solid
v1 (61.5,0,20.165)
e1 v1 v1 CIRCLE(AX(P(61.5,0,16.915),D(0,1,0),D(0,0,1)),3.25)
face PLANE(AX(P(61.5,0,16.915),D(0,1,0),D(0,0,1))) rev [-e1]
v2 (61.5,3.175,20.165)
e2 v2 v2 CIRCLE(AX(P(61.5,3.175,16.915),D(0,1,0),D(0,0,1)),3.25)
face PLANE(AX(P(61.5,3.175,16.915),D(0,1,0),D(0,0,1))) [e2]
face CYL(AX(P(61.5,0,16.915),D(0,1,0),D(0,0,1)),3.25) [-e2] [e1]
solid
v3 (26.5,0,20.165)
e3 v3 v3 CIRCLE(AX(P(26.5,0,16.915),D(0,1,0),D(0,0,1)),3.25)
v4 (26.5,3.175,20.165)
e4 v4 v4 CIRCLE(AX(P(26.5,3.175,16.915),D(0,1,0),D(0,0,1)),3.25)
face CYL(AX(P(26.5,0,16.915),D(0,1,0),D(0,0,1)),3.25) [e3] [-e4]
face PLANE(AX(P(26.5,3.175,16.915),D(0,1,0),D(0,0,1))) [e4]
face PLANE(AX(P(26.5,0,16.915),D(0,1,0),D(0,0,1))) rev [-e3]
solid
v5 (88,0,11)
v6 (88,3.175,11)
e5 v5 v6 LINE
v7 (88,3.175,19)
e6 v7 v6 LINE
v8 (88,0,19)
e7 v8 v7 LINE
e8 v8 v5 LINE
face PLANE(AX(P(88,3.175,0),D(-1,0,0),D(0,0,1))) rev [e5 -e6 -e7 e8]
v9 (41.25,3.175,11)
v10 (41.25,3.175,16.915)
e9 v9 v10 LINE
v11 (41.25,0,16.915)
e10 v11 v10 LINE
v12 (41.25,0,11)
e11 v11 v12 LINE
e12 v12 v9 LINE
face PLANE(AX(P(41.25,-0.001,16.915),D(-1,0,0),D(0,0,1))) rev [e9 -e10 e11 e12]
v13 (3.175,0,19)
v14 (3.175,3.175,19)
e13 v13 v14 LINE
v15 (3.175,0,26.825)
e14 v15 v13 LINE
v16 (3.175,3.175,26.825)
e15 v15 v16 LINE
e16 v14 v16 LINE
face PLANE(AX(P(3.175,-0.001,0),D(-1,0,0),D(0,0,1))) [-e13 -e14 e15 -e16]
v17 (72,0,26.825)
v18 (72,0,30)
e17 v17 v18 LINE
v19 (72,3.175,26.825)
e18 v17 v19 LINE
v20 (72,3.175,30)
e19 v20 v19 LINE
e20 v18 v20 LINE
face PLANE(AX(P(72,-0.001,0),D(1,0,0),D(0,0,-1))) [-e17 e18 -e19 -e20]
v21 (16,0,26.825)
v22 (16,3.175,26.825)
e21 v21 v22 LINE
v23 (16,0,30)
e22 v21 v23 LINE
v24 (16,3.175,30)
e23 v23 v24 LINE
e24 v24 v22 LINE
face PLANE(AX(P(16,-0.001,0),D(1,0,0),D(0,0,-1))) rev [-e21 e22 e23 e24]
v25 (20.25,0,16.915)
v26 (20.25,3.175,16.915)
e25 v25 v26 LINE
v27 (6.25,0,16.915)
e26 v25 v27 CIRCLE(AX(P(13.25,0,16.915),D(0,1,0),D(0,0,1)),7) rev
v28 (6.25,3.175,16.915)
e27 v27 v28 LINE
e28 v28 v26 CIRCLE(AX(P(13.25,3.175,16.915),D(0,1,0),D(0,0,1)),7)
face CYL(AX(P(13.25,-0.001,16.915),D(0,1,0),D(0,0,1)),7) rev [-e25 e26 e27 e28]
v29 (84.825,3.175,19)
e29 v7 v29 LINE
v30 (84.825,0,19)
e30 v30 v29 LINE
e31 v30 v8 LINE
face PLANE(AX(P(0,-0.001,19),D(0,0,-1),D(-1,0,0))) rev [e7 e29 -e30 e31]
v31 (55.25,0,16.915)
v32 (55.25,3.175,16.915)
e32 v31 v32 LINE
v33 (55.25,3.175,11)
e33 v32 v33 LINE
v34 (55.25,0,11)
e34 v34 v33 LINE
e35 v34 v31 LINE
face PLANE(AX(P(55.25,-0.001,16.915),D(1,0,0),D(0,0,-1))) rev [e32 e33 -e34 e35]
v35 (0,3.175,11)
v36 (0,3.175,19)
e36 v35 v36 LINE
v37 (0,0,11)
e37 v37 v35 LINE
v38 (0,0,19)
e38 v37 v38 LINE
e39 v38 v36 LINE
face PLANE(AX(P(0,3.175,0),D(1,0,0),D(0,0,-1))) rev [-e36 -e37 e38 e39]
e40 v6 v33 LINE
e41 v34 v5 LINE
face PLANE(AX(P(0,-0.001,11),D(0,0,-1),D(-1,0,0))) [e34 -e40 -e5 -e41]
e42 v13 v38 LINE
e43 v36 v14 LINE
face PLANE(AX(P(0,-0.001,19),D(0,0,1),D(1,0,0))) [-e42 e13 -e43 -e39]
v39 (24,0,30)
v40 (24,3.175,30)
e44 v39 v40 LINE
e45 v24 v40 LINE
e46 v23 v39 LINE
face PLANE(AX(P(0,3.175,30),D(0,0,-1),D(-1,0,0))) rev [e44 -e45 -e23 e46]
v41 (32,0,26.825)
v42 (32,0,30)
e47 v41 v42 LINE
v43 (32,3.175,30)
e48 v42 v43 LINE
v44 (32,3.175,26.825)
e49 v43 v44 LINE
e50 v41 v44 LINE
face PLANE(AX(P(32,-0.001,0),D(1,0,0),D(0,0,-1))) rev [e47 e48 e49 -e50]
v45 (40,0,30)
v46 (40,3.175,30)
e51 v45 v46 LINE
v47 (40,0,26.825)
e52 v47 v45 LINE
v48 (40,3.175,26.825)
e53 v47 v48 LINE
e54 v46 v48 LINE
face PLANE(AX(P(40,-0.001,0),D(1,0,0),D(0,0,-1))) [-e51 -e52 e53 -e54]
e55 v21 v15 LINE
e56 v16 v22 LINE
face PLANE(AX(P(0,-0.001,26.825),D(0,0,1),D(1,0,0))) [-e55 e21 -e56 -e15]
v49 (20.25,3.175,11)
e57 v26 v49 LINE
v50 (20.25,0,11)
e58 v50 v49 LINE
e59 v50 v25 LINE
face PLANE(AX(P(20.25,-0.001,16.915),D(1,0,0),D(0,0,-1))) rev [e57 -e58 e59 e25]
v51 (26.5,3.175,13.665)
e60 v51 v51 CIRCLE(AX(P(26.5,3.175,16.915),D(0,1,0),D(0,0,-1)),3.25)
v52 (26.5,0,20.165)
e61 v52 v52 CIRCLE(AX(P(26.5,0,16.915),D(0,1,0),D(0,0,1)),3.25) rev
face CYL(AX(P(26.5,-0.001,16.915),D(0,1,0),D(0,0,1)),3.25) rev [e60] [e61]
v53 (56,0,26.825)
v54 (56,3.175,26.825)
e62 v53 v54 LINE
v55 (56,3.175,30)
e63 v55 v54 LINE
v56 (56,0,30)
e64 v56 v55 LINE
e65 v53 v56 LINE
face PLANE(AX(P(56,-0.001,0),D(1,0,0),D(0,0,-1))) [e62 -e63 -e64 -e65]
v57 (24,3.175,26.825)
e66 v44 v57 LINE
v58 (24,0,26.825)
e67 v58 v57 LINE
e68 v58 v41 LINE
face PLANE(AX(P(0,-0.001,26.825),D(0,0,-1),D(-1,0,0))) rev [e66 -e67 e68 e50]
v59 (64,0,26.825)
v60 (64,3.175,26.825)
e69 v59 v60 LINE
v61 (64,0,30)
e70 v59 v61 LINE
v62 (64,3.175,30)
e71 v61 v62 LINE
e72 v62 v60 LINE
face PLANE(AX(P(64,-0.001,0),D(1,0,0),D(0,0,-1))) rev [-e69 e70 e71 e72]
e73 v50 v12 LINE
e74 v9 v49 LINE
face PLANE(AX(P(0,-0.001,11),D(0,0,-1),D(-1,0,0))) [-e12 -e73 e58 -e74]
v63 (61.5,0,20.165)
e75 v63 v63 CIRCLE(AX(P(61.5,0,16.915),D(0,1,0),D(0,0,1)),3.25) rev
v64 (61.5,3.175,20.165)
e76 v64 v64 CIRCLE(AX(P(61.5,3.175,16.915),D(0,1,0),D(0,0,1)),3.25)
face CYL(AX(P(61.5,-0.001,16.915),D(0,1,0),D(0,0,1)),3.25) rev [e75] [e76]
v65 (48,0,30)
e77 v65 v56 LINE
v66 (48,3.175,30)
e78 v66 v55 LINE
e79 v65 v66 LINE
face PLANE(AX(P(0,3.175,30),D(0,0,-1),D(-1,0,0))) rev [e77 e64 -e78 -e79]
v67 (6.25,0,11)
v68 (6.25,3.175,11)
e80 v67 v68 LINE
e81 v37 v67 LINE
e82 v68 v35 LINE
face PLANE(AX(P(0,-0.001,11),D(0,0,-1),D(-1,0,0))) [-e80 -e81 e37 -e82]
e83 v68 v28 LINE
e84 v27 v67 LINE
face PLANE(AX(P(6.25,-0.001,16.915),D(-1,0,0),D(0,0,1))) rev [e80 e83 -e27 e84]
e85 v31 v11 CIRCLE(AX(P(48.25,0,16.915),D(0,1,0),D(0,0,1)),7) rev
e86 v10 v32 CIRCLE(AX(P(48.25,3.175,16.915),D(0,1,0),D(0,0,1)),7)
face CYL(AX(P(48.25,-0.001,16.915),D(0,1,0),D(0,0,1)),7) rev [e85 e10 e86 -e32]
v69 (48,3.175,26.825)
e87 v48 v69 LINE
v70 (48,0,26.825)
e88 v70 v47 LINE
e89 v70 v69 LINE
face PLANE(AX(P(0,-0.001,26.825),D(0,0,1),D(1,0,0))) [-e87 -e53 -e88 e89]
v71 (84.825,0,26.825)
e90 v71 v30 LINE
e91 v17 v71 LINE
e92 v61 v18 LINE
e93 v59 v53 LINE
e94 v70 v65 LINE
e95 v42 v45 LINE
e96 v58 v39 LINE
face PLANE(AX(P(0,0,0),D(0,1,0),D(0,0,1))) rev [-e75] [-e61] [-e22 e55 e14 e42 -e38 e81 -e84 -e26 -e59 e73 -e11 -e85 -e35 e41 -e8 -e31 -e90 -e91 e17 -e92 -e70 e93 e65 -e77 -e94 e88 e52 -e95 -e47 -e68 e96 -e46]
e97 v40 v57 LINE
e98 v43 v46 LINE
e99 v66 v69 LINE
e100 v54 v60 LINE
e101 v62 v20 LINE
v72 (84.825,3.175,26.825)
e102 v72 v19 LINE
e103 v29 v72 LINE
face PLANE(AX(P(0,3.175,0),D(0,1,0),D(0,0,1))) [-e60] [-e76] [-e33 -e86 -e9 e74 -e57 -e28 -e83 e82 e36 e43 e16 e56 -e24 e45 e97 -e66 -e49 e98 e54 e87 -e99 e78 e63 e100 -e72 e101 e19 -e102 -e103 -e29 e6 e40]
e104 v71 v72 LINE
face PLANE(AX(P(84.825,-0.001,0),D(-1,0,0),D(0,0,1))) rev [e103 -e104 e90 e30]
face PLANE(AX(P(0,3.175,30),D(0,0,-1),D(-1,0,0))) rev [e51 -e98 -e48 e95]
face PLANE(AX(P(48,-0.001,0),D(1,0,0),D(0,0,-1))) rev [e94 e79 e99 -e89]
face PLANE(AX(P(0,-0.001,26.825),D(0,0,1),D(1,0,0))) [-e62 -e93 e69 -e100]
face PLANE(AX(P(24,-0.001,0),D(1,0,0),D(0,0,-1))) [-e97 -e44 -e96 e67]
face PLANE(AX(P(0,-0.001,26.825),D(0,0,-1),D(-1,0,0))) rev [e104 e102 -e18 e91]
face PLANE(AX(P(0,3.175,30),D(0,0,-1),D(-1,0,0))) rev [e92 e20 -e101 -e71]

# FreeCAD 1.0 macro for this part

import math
import FreeCAD as App
import Part
import Sketcher
from FreeCAD import Vector

doc = App.newDocument("Part")
params = doc.addObject("Spreadsheet::Sheet", "Params")
for row, (alias, value) in enumerate([
    ("sketch1_width", "88 mm"),
    ("sketch1_height", "30 mm"),
    ("pad1_length", "3.175 mm"),
    ("sketch3_width", "16 mm"),
    ("sketch4_width", "8 mm"),
    ("sketch5_width", "8 mm"),
    ("sketch6_width", "8 mm"),
    ("sketch8_height", "11 mm"),
    ("sketch9_width", "16 mm"),
    ("sketch10_height", "11 mm"),
    ("sketch11_diameter", "6.5 mm"),
    ("sketch12_diameter", "6.5 mm"),
    ("sketch13_height", "11 mm"),
    ("sketch13_width", "81.65 mm"),
    ("sketch14_radius", "7 mm"),
    ("sketch15_radius", "7 mm"),
    ("sketch16_diameter", "6.5 mm"),
    ("pad2_length", "3.175 mm"),
    ("sketch17_diameter", "6.5 mm"),
    ("pad3_length", "3.175 mm"),
], start=1):
    params.set(f"A{row}", alias)
    params.set(f"B{row}", "=" + value)
    params.setAlias(f"B{row}", alias)

body = doc.addObject("PartDesign::Body", "Body")

# Sketch on XZ plane
sketch1 = body.newObject("Sketcher::SketchObject", "Sketch")
sketch1.AttachmentSupport = (doc.getObject("XZ_Plane"), [""])
sketch1.MapMode = "FlatFace"
sketch1.addGeometry([
    Part.LineSegment(Vector(0, 0, 0), Vector(0, 30, 0)),
    Part.LineSegment(Vector(0, 30, 0), Vector(88, 30, 0)),
    Part.LineSegment(Vector(88, 30, 0), Vector(88, 0, 0)),
    Part.LineSegment(Vector(88, 0, 0), Vector(0, 0, 0)),
], False)
sketch1.addConstraint([
    Sketcher.Constraint("Coincident", 0, 2, 1, 1),
    Sketcher.Constraint("Coincident", 1, 2, 2, 1),
    Sketcher.Constraint("Coincident", 2, 2, 3, 1),
    Sketcher.Constraint("Coincident", 3, 2, 0, 1),
    Sketcher.Constraint("Vertical", 0),
    Sketcher.Constraint("Horizontal", 1),
    Sketcher.Constraint("Vertical", 2),
    Sketcher.Constraint("Horizontal", 3),
    Sketcher.Constraint("Coincident", 3, 2, -1, 1),
    Sketcher.Constraint("DistanceX", 1, 1, 1, 2, 88.0),
    Sketcher.Constraint("DistanceY", 0, 1, 0, 2, 30.0),
])
sketch1.setExpression("Constraints[9]", "Params.sketch1_width")
sketch1.setExpression("Constraints[10]", "Params.sketch1_height")
pad1 = body.newObject("PartDesign::Pad", "Pad")
pad1.Profile = sketch1
pad1.setExpression("Length", "Params.pad1_length")
pad1.Reversed = True

# Sketch on XZ plane
sketch2 = body.newObject("Sketcher::SketchObject", "Sketch001")
sketch2.AttachmentSupport = (doc.getObject("XZ_Plane"), [""])
sketch2.MapMode = "FlatFace"
sketch2.AttachmentOffset = App.Placement(Vector(0, 0, -3.175), App.Rotation())
sketch2.addGeometry([
    Part.LineSegment(Vector(0, 19, 0), Vector(0, 26.8, 0)),
    Part.LineSegment(Vector(0, 26.8, 0), Vector(3.2, 26.8, 0)),
    Part.LineSegment(Vector(3.2, 26.8, 0), Vector(3.2, 19, 0)),
    Part.LineSegment(Vector(3.2, 19, 0), Vector(0, 19, 0)),
], False)
sketch2.addConstraint([
    Sketcher.Constraint("Coincident", 0, 2, 1, 1),
    Sketcher.Constraint("Coincident", 1, 2, 2, 1),
    Sketcher.Constraint("Coincident", 2, 2, 3, 1),
    Sketcher.Constraint("Coincident", 3, 2, 0, 1),
    Sketcher.Constraint("Vertical", 0),
    Sketcher.Constraint("Horizontal", 1),
    Sketcher.Constraint("Vertical", 2),
    Sketcher.Constraint("Horizontal", 3),
    Sketcher.Constraint("PointOnObject", 0, 2, -2),
    Sketcher.Constraint("DistanceY", -1, 1, 2, 2, 19.0),
    Sketcher.Constraint("DistanceX", 1, 1, 1, 2, 3.175),
    Sketcher.Constraint("DistanceY", 0, 1, 0, 2, 7.825),
])
pocket1 = body.newObject("PartDesign::Pocket", "Pocket")
pocket1.Profile = sketch2
pocket1.Type = "UpToFirst"
pocket1.Reversed = True

# Sketch on XZ plane
sketch3 = body.newObject("Sketcher::SketchObject", "Sketch002")
sketch3.AttachmentSupport = (doc.getObject("XZ_Plane"), [""])
sketch3.MapMode = "FlatFace"
sketch3.AttachmentOffset = App.Placement(Vector(0, 0, -3.175), App.Rotation())
sketch3.addGeometry([
    Part.LineSegment(Vector(0, 30, 0), Vector(16, 30, 0)),
    Part.LineSegment(Vector(16, 30, 0), Vector(16, 26.8, 0)),
    Part.LineSegment(Vector(16, 26.8, 0), Vector(0, 26.8, 0)),
    Part.LineSegment(Vector(0, 26.8, 0), Vector(0, 30, 0)),
], False)
sketch3.addConstraint([
    Sketcher.Constraint("Coincident", 0, 2, 1, 1),
    Sketcher.Constraint("Coincident", 1, 2, 2, 1),
    Sketcher.Constraint("Coincident", 2, 2, 3, 1),
    Sketcher.Constraint("Coincident", 3, 2, 0, 1),
    Sketcher.Constraint("Horizontal", 0),
    Sketcher.Constraint("Vertical", 1),
    Sketcher.Constraint("Horizontal", 2),
    Sketcher.Constraint("Vertical", 3),
    Sketcher.Constraint("PointOnObject", 2, 2, -2),
    Sketcher.Constraint("DistanceX", 0, 1, 0, 2, 16.0),
    Sketcher.Constraint("DistanceY", -1, 1, 0, 2, 30.0),
    Sketcher.Constraint("DistanceY", 1, 2, 1, 1, 3.175),
])
sketch3.setExpression("Constraints[9]", "Params.sketch3_width")
pocket2 = body.newObject("PartDesign::Pocket", "Pocket001")
pocket2.Profile = sketch3
pocket2.Type = "UpToFirst"
pocket2.Reversed = True

# Sketch on XZ plane
sketch4 = body.newObject("Sketcher::SketchObject", "Sketch003")
sketch4.AttachmentSupport = (doc.getObject("XZ_Plane"), [""])
sketch4.MapMode = "FlatFace"
sketch4.AttachmentOffset = App.Placement(Vector(0, 0, -3.175), App.Rotation())
sketch4.addGeometry([
    Part.LineSegment(Vector(24, 26.8, 0), Vector(24, 30, 0)),
    Part.LineSegment(Vector(24, 30, 0), Vector(32, 30, 0)),
    Part.LineSegment(Vector(32, 30, 0), Vector(32, 26.8, 0)),
    Part.LineSegment(Vector(32, 26.8, 0), Vector(24, 26.8, 0)),
], False)
sketch4.addConstraint([
    Sketcher.Constraint("Coincident", 0, 2, 1, 1),
    Sketcher.Constraint("Coincident", 1, 2, 2, 1),
    Sketcher.Constraint("Coincident", 2, 2, 3, 1),
    Sketcher.Constraint("Coincident", 3, 2, 0, 1),
    Sketcher.Constraint("Vertical", 0),
    Sketcher.Constraint("Horizontal", 1),
    Sketcher.Constraint("Vertical", 2),
    Sketcher.Constraint("Horizontal", 3),
    Sketcher.Constraint("DistanceX", 1, 1, 1, 2, 8.0),
    Sketcher.Constraint("DistanceX", -1, 1, 0, 2, 24.0),
    Sketcher.Constraint("DistanceY", -1, 1, 0, 2, 30.0),
    Sketcher.Constraint("DistanceY", 0, 1, 0, 2, 3.175),
])
sketch4.setExpression("Constraints[8]", "Params.sketch4_width")
pocket3 = body.newObject("PartDesign::Pocket", "Pocket002")
pocket3.Profile = sketch4
pocket3.Type = "UpToFirst"
pocket3.Reversed = True

# Sketch on XZ plane
sketch5 = body.newObject("Sketcher::SketchObject", "Sketch004")
sketch5.AttachmentSupport = (doc.getObject("XZ_Plane"), [""])
sketch5.MapMode = "FlatFace"
sketch5.AttachmentOffset = App.Placement(Vector(0, 0, -3.175), App.Rotation())
sketch5.addGeometry([
    Part.LineSegment(Vector(40, 26.8, 0), Vector(40, 30, 0)),
    Part.LineSegment(Vector(40, 30, 0), Vector(48, 30, 0)),
    Part.LineSegment(Vector(48, 30, 0), Vector(48, 26.8, 0)),
    Part.LineSegment(Vector(48, 26.8, 0), Vector(40, 26.8, 0)),
], False)
sketch5.addConstraint([
    Sketcher.Constraint("Coincident", 0, 2, 1, 1),
    Sketcher.Constraint("Coincident", 1, 2, 2, 1),
    Sketcher.Constraint("Coincident", 2, 2, 3, 1),
    Sketcher.Constraint("Coincident", 3, 2, 0, 1),
    Sketcher.Constraint("Vertical", 0),
    Sketcher.Constraint("Horizontal", 1),
    Sketcher.Constraint("Vertical", 2),
    Sketcher.Constraint("Horizontal", 3),
    Sketcher.Constraint("DistanceX", 1, 1, 1, 2, 8.0),
    Sketcher.Constraint("DistanceX", -1, 1, 0, 2, 40.0),
    Sketcher.Constraint("DistanceY", -1, 1, 0, 2, 30.0),
    Sketcher.Constraint("DistanceY", 0, 1, 0, 2, 3.175),
])
sketch5.setExpression("Constraints[8]", "Params.sketch5_width")
pocket4 = body.newObject("PartDesign::Pocket", "Pocket003")
pocket4.Profile = sketch5
pocket4.Type = "UpToFirst"
pocket4.Reversed = True

# Sketch on XZ plane
sketch6 = body.newObject("Sketcher::SketchObject", "Sketch005")
sketch6.AttachmentSupport = (doc.getObject("XZ_Plane"), [""])
sketch6.MapMode = "FlatFace"
sketch6.AttachmentOffset = App.Placement(Vector(0, 0, -3.175), App.Rotation())
sketch6.addGeometry([
    Part.LineSegment(Vector(56, 26.8, 0), Vector(56, 30, 0)),
    Part.LineSegment(Vector(56, 30, 0), Vector(64, 30, 0)),
    Part.LineSegment(Vector(64, 30, 0), Vector(64, 26.8, 0)),
    Part.LineSegment(Vector(64, 26.8, 0), Vector(56, 26.8, 0)),
], False)
sketch6.addConstraint([
    Sketcher.Constraint("Coincident", 0, 2, 1, 1),
    Sketcher.Constraint("Coincident", 1, 2, 2, 1),
    Sketcher.Constraint("Coincident", 2, 2, 3, 1),
    Sketcher.Constraint("Coincident", 3, 2, 0, 1),
    Sketcher.Constraint("Vertical", 0),
    Sketcher.Constraint("Horizontal", 1),
    Sketcher.Constraint("Vertical", 2),
    Sketcher.Constraint("Horizontal", 3),
    Sketcher.Constraint("DistanceX", 1, 1, 1, 2, 8.0),
    Sketcher.Constraint("DistanceX", -1, 1, 0, 2, 56.0),
    Sketcher.Constraint("DistanceY", -1, 1, 0, 2, 30.0),
    Sketcher.Constraint("DistanceY", 0, 1, 0, 2, 3.175),
])
sketch6.setExpression("Constraints[8]", "Params.sketch6_width")
pocket5 = body.newObject("PartDesign::Pocket", "Pocket004")
pocket5.Profile = sketch6
pocket5.Type = "UpToFirst"
pocket5.Reversed = True

# Sketch on XZ plane
sketch7 = body.newObject("Sketcher::SketchObject", "Sketch006")
sketch7.AttachmentSupport = (doc.getObject("XZ_Plane"), [""])
sketch7.MapMode = "FlatFace"
sketch7.AttachmentOffset = App.Placement(Vector(0, 0, -3.175), App.Rotation())
sketch7.addGeometry([
    Part.LineSegment(Vector(84.8, 19, 0), Vector(84.8, 26.8, 0)),
    Part.LineSegment(Vector(84.8, 26.8, 0), Vector(88, 26.8, 0)),
    Part.LineSegment(Vector(88, 26.8, 0), Vector(88, 19, 0)),
    Part.LineSegment(Vector(88, 19, 0), Vector(84.8, 19, 0)),
], False)
sketch7.addConstraint([
    Sketcher.Constraint("Coincident", 0, 2, 1, 1),
    Sketcher.Constraint("Coincident", 1, 2, 2, 1),
    Sketcher.Constraint("Coincident", 2, 2, 3, 1),
    Sketcher.Constraint("Coincident", 3, 2, 0, 1),
    Sketcher.Constraint("Vertical", 0),
    Sketcher.Constraint("Horizontal", 1),
    Sketcher.Constraint("Vertical", 2),
    Sketcher.Constraint("Horizontal", 3),
    Sketcher.Constraint("DistanceX", -1, 1, 1, 2, 88.0),
    Sketcher.Constraint("DistanceY", -1, 1, 2, 2, 19.0),
    Sketcher.Constraint("DistanceX", 1, 1, 1, 2, 3.175),
    Sketcher.Constraint("DistanceY", 0, 1, 0, 2, 7.825),
])
pocket6 = body.newObject("PartDesign::Pocket", "Pocket005")
pocket6.Profile = sketch7
pocket6.Type = "UpToFirst"
pocket6.Reversed = True

# Sketch on XZ plane
sketch8 = body.newObject("Sketcher::SketchObject", "Sketch007")
sketch8.AttachmentSupport = (doc.getObject("XZ_Plane"), [""])
sketch8.MapMode = "FlatFace"
sketch8.AttachmentOffset = App.Placement(Vector(0, 0, -3.175), App.Rotation())
sketch8.addGeometry([
    Part.LineSegment(Vector(84.8, 0, 0), Vector(84.8, 11, 0)),
    Part.LineSegment(Vector(84.8, 11, 0), Vector(88, 11, 0)),
    Part.LineSegment(Vector(88, 11, 0), Vector(88, 0, 0)),
    Part.LineSegment(Vector(88, 0, 0), Vector(84.8, 0, 0)),
], False)
sketch8.addConstraint([
    Sketcher.Constraint("Coincident", 0, 2, 1, 1),
    Sketcher.Constraint("Coincident", 1, 2, 2, 1),
    Sketcher.Constraint("Coincident", 2, 2, 3, 1),
    Sketcher.Constraint("Coincident", 3, 2, 0, 1),
    Sketcher.Constraint("Vertical", 0),
    Sketcher.Constraint("Horizontal", 1),
    Sketcher.Constraint("Vertical", 2),
    Sketcher.Constraint("Horizontal", 3),
    Sketcher.Constraint("PointOnObject", 2, 2, -1),
    Sketcher.Constraint("DistanceY", 0, 1, 0, 2, 11.0),
    Sketcher.Constraint("DistanceX", -1, 1, 1, 2, 88.0),
    Sketcher.Constraint("DistanceX", 1, 1, 1, 2, 3.175),
])
sketch8.setExpression("Constraints[9]", "Params.sketch8_height")
pocket7 = body.newObject("PartDesign::Pocket", "Pocket006")
pocket7.Profile = sketch8
pocket7.Type = "UpToFirst"
pocket7.Reversed = True

# Sketch on XZ plane
sketch9 = body.newObject("Sketcher::SketchObject", "Sketch008")
sketch9.AttachmentSupport = (doc.getObject("XZ_Plane"), [""])
sketch9.MapMode = "FlatFace"
sketch9.AttachmentOffset = App.Placement(Vector(0, 0, -3.175), App.Rotation())
sketch9.addGeometry([
    Part.LineSegment(Vector(72, 26.8, 0), Vector(72, 30, 0)),
    Part.LineSegment(Vector(72, 30, 0), Vector(88, 30, 0)),
    Part.LineSegment(Vector(88, 30, 0), Vector(88, 26.8, 0)),
    Part.LineSegment(Vector(88, 26.8, 0), Vector(72, 26.8, 0)),
], False)
sketch9.addConstraint([
    Sketcher.Constraint("Coincident", 0, 2, 1, 1),
    Sketcher.Constraint("Coincident", 1, 2, 2, 1),
    Sketcher.Constraint("Coincident", 2, 2, 3, 1),
    Sketcher.Constraint("Coincident", 3, 2, 0, 1),
    Sketcher.Constraint("Vertical", 0),
    Sketcher.Constraint("Horizontal", 1),
    Sketcher.Constraint("Vertical", 2),
    Sketcher.Constraint("Horizontal", 3),
    Sketcher.Constraint("DistanceX", 1, 1, 1, 2, 16.0),
    Sketcher.Constraint("DistanceX", -1, 1, 0, 2, 72.0),
    Sketcher.Constraint("DistanceY", -1, 1, 0, 2, 30.0),
    Sketcher.Constraint("DistanceY", 0, 1, 0, 2, 3.175),
])
sketch9.setExpression("Constraints[8]", "Params.sketch9_width")
pocket8 = body.newObject("PartDesign::Pocket", "Pocket007")
pocket8.Profile = sketch9
pocket8.Type = "UpToFirst"
pocket8.Reversed = True

# Sketch on XZ plane
sketch10 = body.newObject("Sketcher::SketchObject", "Sketch009")
sketch10.AttachmentSupport = (doc.getObject("XZ_Plane"), [""])
sketch10.MapMode = "FlatFace"
sketch10.AttachmentOffset = App.Placement(Vector(0, 0, -3.175), App.Rotation())
sketch10.addGeometry([
    Part.LineSegment(Vector(0, 0, 0), Vector(0, 11, 0)),
    Part.LineSegment(Vector(0, 11, 0), Vector(3.2, 11, 0)),
    Part.LineSegment(Vector(3.2, 11, 0), Vector(3.2, 0, 0)),
    Part.LineSegment(Vector(3.2, 0, 0), Vector(0, 0, 0)),
], False)
sketch10.addConstraint([
    Sketcher.Constraint("Coincident", 0, 2, 1, 1),
    Sketcher.Constraint("Coincident", 1, 2, 2, 1),
    Sketcher.Constraint("Coincident", 2, 2, 3, 1),
    Sketcher.Constraint("Coincident", 3, 2, 0, 1),
    Sketcher.Constraint("Vertical", 0),
    Sketcher.Constraint("Horizontal", 1),
    Sketcher.Constraint("Vertical", 2),
    Sketcher.Constraint("Horizontal", 3),
    Sketcher.Constraint("Coincident", 3, 2, -1, 1),
    Sketcher.Constraint("DistanceY", 0, 1, 0, 2, 11.0),
    Sketcher.Constraint("DistanceX", 1, 1, 1, 2, 3.175),
])
sketch10.setExpression("Constraints[9]", "Params.sketch10_height")
pocket9 = body.newObject("PartDesign::Pocket", "Pocket008")
pocket9.Profile = sketch10
pocket9.Type = "UpToFirst"
pocket9.Reversed = True

# Sketch on XZ plane
sketch11 = body.newObject("Sketcher::SketchObject", "Sketch010")
sketch11.AttachmentSupport = (doc.getObject("XZ_Plane"), [""])
sketch11.MapMode = "FlatFace"
sketch11.AttachmentOffset = App.Placement(Vector(0, 0, -3.175), App.Rotation())
sketch11.addGeometry(Part.Circle(Vector(61.5, 16.9, 0), Vector(0, 0, 1), 3.2), False)
sketch11.addConstraint([
    Sketcher.Constraint("Diameter", 0, 6.5),
    Sketcher.Constraint("DistanceX", -1, 1, 0, 3, 61.5),
    Sketcher.Constraint("DistanceY", -1, 1, 0, 3, 16.915),
])
sketch11.setExpression("Constraints[0]", "Params.sketch11_diameter")
pocket10 = body.newObject("PartDesign::Pocket", "Pocket009")
pocket10.Profile = sketch11
pocket10.Type = "UpToFirst"
pocket10.Reversed = True

# Sketch on XZ plane
sketch12 = body.newObject("Sketcher::SketchObject", "Sketch011")
sketch12.AttachmentSupport = (doc.getObject("XZ_Plane"), [""])
sketch12.MapMode = "FlatFace"
sketch12.AttachmentOffset = App.Placement(Vector(0, 0, -3.175), App.Rotation())
sketch12.addGeometry(Part.Circle(Vector(26.5, 16.9, 0), Vector(0, 0, 1), 3.2), False)
sketch12.addConstraint([
    Sketcher.Constraint("Diameter", 0, 6.5),
    Sketcher.Constraint("DistanceX", -1, 1, 0, 3, 26.5),
    Sketcher.Constraint("DistanceY", -1, 1, 0, 3, 16.915),
])
sketch12.setExpression("Constraints[0]", "Params.sketch12_diameter")
pocket11 = body.newObject("PartDesign::Pocket", "Pocket010")
pocket11.Profile = sketch12
pocket11.Type = "UpToFirst"
pocket11.Reversed = True

# Sketch on XZ plane
sketch13 = body.newObject("Sketcher::SketchObject", "Sketch012")
sketch13.AttachmentSupport = (doc.getObject("XZ_Plane"), [""])
sketch13.MapMode = "FlatFace"
sketch13.AttachmentOffset = App.Placement(Vector(0, 0, -3.175), App.Rotation())
sketch13.addGeometry([
    Part.LineSegment(Vector(3, 0, 0), Vector(3, 11, 0)),
    Part.LineSegment(Vector(3, 11, 0), Vector(85, 11, 0)),
    Part.LineSegment(Vector(85, 11, 0), Vector(85, 0, 0)),
    Part.LineSegment(Vector(85, 0, 0), Vector(3, 0, 0)),
], False)
sketch13.addConstraint([
    Sketcher.Constraint("Coincident", 0, 2, 1, 1),
    Sketcher.Constraint("Coincident", 1, 2, 2, 1),
    Sketcher.Constraint("Coincident", 2, 2, 3, 1),
    Sketcher.Constraint("Coincident", 3, 2, 0, 1),
    Sketcher.Constraint("Vertical", 0),
    Sketcher.Constraint("Horizontal", 1),
    Sketcher.Constraint("Vertical", 2),
    Sketcher.Constraint("Horizontal", 3),
    Sketcher.Constraint("PointOnObject", 2, 2, -1),
    Sketcher.Constraint("DistanceY", 0, 1, 0, 2, 11.0),
    Sketcher.Constraint("DistanceX", 1, 1, 1, 2, 81.65),
    Sketcher.Constraint("DistanceX", -1, 1, 0, 2, 3.175),
])
sketch13.setExpression("Constraints[9]", "Params.sketch13_height")
sketch13.setExpression("Constraints[10]", "Params.sketch13_width")
pocket12 = body.newObject("PartDesign::Pocket", "Pocket011")
pocket12.Profile = sketch13
pocket12.Type = "UpToFirst"
pocket12.Reversed = True

# Sketch on XZ plane
sketch14 = body.newObject("Sketcher::SketchObject", "Sketch013")
sketch14.AttachmentSupport = (doc.getObject("XZ_Plane"), [""])
sketch14.MapMode = "FlatFace"
sketch14.AttachmentOffset = App.Placement(Vector(0, 0, -3.175), App.Rotation())
sketch14.addGeometry([
    Part.LineSegment(Vector(6, 11, 0), Vector(6, 17, 0)),
    Part.ArcOfCircle(Part.Circle(Vector(13, 17, 0), Vector(0, 0, 1), 7), math.radians(0), math.radians(180)),
    Part.LineSegment(Vector(20, 17, 0), Vector(20, 11, 0)),
    Part.LineSegment(Vector(20, 11, 0), Vector(6, 11, 0)),
], False)
sketch14.addConstraint([
    Sketcher.Constraint("Tangent", 0, 2, 1, 2),
    Sketcher.Constraint("Tangent", 1, 1, 2, 1),
    Sketcher.Constraint("Coincident", 2, 2, 3, 1),
    Sketcher.Constraint("Coincident", 3, 2, 0, 1),
    Sketcher.Constraint("Vertical", 0),
    Sketcher.Constraint("Vertical", 2),
    Sketcher.Constraint("Horizontal", 3),
    Sketcher.Constraint("Radius", 1, 7.0),
    Sketcher.Constraint("DistanceY", -1, 1, 2, 2, 11.0),
    Sketcher.Constraint("DistanceY", 0, 1, 0, 2, 5.915),
    Sketcher.Constraint("DistanceX", -1, 1, 1, 3, 13.25),
])
sketch14.setExpression("Constraints[7]", "Params.sketch14_radius")
pocket13 = body.newObject("PartDesign::Pocket", "Pocket012")
pocket13.Profile = sketch14
pocket13.Type = "UpToFirst"
pocket13.Reversed = True

# Sketch on XZ plane
sketch15 = body.newObject("Sketcher::SketchObject", "Sketch014")
sketch15.AttachmentSupport = (doc.getObject("XZ_Plane"), [""])
sketch15.MapMode = "FlatFace"
sketch15.AttachmentOffset = App.Placement(Vector(0, 0, -3.175), App.Rotation())
sketch15.addGeometry([
    Part.LineSegment(Vector(41, 11, 0), Vector(41, 17, 0)),
    Part.ArcOfCircle(Part.Circle(Vector(48, 17, 0), Vector(0, 0, 1), 7), math.radians(0), math.radians(180)),
    Part.LineSegment(Vector(55, 17, 0), Vector(55, 11, 0)),
    Part.LineSegment(Vector(55, 11, 0), Vector(41, 11, 0)),
], False)
sketch15.addConstraint([
    Sketcher.Constraint("Tangent", 0, 2, 1, 2),
    Sketcher.Constraint("Tangent", 1, 1, 2, 1),
    Sketcher.Constraint("Coincident", 2, 2, 3, 1),
    Sketcher.Constraint("Coincident", 3, 2, 0, 1),
    Sketcher.Constraint("Vertical", 0),
    Sketcher.Constraint("Vertical", 2),
    Sketcher.Constraint("Horizontal", 3),
    Sketcher.Constraint("Radius", 1, 7.0),
    Sketcher.Constraint("DistanceY", -1, 1, 2, 2, 11.0),
    Sketcher.Constraint("DistanceY", 0, 1, 0, 2, 5.915),
    Sketcher.Constraint("DistanceX", -1, 1, 1, 3, 48.25),
])
sketch15.setExpression("Constraints[7]", "Params.sketch15_radius")
pocket14 = body.newObject("PartDesign::Pocket", "Pocket013")
pocket14.Profile = sketch15
pocket14.Type = "UpToFirst"
pocket14.Reversed = True
body2 = doc.addObject("PartDesign::Body", "Body001")

# Sketch on XZ plane
sketch16 = body2.newObject("Sketcher::SketchObject", "Sketch015")
sketch16.AttachmentSupport = (doc.getObject("XZ_Plane001"), [""])
sketch16.MapMode = "FlatFace"
sketch16.AttachmentOffset = App.Placement(Vector(0, 0, -3.175), App.Rotation())
sketch16.addGeometry(Part.Circle(Vector(26.5, 16.9, 0), Vector(0, 0, 1), 3.2), False)
sketch16.addConstraint([
    Sketcher.Constraint("Diameter", 0, 6.5),
    Sketcher.Constraint("DistanceX", -1, 1, 0, 3, 26.5),
    Sketcher.Constraint("DistanceY", -1, 1, 0, 3, 16.915),
])
sketch16.setExpression("Constraints[0]", "Params.sketch16_diameter")
pad2 = body2.newObject("PartDesign::Pad", "Pad001")
pad2.Profile = sketch16
pad2.setExpression("Length", "Params.pad2_length")
body3 = doc.addObject("PartDesign::Body", "Body002")

# Sketch on XZ plane
sketch17 = body3.newObject("Sketcher::SketchObject", "Sketch016")
sketch17.AttachmentSupport = (doc.getObject("XZ_Plane002"), [""])
sketch17.MapMode = "FlatFace"
sketch17.AttachmentOffset = App.Placement(Vector(0, 0, -3.175), App.Rotation())
sketch17.addGeometry(Part.Circle(Vector(61.5, 16.9, 0), Vector(0, 0, 1), 3.2), False)
sketch17.addConstraint([
    Sketcher.Constraint("Diameter", 0, 6.5),
    Sketcher.Constraint("DistanceX", -1, 1, 0, 3, 61.5),
    Sketcher.Constraint("DistanceY", -1, 1, 0, 3, 16.915),
])
sketch17.setExpression("Constraints[0]", "Params.sketch17_diameter")
pad3 = body3.newObject("PartDesign::Pad", "Pad002")
pad3.Profile = sketch17
pad3.setExpression("Length", "Params.pad3_length")

doc.recompute()
